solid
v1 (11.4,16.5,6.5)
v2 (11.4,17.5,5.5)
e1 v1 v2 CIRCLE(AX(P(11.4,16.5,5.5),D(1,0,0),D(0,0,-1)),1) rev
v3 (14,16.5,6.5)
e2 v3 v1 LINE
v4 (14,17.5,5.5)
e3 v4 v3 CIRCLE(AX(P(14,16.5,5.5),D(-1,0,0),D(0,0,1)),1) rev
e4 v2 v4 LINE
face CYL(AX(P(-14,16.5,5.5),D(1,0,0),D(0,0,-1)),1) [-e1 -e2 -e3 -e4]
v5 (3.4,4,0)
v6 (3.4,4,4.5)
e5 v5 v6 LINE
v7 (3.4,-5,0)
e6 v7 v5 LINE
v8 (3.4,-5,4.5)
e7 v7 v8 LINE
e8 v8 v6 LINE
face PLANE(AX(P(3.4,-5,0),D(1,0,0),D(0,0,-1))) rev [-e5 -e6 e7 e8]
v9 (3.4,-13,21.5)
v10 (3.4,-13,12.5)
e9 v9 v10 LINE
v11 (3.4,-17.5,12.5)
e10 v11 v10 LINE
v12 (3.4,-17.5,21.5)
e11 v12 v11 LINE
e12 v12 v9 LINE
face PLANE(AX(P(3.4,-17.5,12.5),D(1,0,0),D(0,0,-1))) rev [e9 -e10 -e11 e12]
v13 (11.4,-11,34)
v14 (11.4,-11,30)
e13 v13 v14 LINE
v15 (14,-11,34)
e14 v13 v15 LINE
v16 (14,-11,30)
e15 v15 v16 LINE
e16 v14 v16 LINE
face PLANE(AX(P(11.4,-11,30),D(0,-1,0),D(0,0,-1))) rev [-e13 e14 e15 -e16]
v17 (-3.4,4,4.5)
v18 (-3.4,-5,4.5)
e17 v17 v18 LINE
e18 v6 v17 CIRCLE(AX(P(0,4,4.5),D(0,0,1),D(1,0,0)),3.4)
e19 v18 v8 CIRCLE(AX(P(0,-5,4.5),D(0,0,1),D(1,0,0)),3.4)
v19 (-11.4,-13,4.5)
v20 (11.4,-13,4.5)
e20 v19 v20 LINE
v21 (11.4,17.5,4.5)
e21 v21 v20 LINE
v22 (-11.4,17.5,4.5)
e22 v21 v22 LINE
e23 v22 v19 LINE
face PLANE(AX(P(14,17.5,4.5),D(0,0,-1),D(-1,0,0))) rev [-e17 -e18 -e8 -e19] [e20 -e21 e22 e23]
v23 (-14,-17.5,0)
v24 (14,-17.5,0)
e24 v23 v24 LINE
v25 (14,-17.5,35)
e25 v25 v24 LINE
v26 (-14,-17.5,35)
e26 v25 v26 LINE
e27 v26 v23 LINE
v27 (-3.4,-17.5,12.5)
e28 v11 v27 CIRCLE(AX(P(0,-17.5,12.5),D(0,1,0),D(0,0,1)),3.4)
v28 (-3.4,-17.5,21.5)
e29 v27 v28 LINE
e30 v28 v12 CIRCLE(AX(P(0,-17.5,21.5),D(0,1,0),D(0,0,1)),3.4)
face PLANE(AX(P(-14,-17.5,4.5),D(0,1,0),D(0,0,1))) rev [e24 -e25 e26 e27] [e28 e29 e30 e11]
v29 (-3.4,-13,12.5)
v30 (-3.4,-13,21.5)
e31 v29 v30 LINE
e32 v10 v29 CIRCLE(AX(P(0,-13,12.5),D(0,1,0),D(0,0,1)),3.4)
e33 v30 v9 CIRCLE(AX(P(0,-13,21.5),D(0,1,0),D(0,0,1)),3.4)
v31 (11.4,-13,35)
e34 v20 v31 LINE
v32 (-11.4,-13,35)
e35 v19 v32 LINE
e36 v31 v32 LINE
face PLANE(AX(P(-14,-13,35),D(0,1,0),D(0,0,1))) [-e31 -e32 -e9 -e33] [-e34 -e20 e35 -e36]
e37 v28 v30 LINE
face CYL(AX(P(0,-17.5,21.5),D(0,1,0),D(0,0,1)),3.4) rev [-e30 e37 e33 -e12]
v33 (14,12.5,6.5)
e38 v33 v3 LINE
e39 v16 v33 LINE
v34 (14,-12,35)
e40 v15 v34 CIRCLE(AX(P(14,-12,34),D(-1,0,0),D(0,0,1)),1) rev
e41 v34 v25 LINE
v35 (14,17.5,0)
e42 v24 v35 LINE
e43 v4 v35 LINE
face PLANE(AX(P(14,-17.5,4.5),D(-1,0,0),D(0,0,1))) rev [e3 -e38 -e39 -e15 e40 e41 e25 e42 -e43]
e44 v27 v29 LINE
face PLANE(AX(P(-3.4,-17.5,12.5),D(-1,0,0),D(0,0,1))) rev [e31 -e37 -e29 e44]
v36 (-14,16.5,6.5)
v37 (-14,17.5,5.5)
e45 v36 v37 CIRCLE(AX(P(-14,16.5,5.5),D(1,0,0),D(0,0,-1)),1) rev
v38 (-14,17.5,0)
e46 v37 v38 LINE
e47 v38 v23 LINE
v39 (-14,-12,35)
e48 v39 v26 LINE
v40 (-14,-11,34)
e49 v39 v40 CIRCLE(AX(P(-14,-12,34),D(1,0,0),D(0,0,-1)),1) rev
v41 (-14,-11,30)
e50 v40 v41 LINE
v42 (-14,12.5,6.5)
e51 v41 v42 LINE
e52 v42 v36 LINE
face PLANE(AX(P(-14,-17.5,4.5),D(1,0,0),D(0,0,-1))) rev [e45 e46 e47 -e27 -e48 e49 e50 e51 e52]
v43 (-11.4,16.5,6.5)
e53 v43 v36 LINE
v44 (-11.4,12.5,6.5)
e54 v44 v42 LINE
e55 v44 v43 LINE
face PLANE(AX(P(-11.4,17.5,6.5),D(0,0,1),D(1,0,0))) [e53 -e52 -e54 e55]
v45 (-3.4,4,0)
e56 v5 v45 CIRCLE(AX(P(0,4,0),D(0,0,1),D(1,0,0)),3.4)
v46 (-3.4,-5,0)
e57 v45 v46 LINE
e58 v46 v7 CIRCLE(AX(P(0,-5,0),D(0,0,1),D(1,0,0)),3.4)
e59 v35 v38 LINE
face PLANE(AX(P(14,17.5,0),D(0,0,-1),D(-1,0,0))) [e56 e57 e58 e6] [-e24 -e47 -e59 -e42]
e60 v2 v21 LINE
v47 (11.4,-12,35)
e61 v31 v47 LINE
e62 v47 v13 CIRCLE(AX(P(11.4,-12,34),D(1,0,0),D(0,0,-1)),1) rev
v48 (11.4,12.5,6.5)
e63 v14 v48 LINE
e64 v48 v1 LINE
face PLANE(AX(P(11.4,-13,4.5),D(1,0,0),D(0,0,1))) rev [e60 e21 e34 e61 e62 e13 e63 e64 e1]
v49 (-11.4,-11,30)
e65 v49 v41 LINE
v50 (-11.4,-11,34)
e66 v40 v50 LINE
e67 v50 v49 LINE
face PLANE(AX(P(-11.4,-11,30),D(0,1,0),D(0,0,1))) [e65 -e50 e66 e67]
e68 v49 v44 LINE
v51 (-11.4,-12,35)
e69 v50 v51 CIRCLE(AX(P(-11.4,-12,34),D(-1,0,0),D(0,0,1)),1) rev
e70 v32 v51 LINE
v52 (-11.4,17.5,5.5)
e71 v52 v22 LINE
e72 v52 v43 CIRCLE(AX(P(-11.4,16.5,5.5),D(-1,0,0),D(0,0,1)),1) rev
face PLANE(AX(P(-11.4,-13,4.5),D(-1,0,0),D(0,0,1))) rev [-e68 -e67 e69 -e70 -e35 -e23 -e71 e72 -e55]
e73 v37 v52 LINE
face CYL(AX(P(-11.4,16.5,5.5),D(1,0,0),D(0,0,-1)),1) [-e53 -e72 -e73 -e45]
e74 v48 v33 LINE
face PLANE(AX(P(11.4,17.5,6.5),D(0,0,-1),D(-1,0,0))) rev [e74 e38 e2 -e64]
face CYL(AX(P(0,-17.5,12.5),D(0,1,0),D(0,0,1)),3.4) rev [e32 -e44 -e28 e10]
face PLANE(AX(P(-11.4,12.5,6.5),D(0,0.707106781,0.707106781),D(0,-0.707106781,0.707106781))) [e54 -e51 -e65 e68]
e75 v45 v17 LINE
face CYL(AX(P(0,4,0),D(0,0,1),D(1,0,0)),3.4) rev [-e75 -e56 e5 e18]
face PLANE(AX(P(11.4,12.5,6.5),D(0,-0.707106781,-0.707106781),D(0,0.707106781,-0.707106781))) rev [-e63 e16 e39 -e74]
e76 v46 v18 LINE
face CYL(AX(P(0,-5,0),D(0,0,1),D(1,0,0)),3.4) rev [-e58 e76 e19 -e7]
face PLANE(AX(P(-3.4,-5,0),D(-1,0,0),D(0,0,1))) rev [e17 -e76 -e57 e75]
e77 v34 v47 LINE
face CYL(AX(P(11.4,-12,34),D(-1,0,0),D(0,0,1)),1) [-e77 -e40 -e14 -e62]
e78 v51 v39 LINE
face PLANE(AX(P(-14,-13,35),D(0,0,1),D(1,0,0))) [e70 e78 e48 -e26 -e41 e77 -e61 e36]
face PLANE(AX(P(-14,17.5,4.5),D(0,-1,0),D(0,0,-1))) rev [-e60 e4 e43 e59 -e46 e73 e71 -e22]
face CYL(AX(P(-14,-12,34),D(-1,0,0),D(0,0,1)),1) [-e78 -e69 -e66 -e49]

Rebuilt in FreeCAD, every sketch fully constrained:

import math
import FreeCAD as App
import Part
import Sketcher

V = App.Vector
Q = App.Units.Quantity


def edges_at(feature, points):
    """Names of the edges that pass closest to the given points."""
    edges = feature.Shape.Edges
    near = lambda p: min(range(len(edges)), key=lambda i: edges[i].distToShape(Part.Vertex(*p))[0])
    return sorted({f"Edge{near(p) + 1}" for p in points})


def add_polygon(sketch, points):
    """Adds a closed chain of lines whose ends are joined by coincident constraints."""
    first, n = sketch.GeometryCount, len(points)
    for a, b in zip(points, points[1:] + points[:1]):
        sketch.addGeometry(Part.LineSegment(App.Vector(*a, 0), App.Vector(*b, 0)), False)
    for i in range(n):
        sketch.addConstraint(Sketcher.Constraint("Coincident", first + i, 2, first + (i + 1) % n, 1))

doc = App.newDocument("Part")
body = doc.addObject("PartDesign::Body", "Body")

# Sketch on XY plane
sketch1 = body.newObject("Sketcher::SketchObject", "Sketch")
sketch1.AttachmentSupport = (doc.getObject("XY_Plane"), [""])
sketch1.MapMode = "FlatFace"
add_polygon(sketch1, [(-14, 18), (-14, -18), (14, -18), (14, 18)])  # lines 0-3
sketch1.addConstraint(Sketcher.Constraint("Vertical", 0))
sketch1.addConstraint(Sketcher.Constraint("Horizontal", 1))
sketch1.addConstraint(Sketcher.Constraint("Vertical", 2))
sketch1.addConstraint(Sketcher.Constraint("Horizontal", 3))
sketch1.addConstraint(Sketcher.Constraint("Symmetric", 0, 2, 2, 2, -1, 1))
sketch1.addConstraint(Sketcher.Constraint("DistanceX", 1, 1, 1, 2, Q("28 mm")))
sketch1.addConstraint(Sketcher.Constraint("DistanceY", 0, 2, 0, 1, Q("35 mm")))
pad1 = body.newObject("PartDesign::Pad", "Pad")
pad1.Profile = sketch1
pad1.Length = 4.5

# Sketch on XZ plane
sketch2 = body.newObject("Sketcher::SketchObject", "Sketch001")
sketch2.AttachmentSupport = (doc.getObject("XZ_Plane"), [""])
sketch2.MapMode = "FlatFace"
sketch2.AttachmentOffset = App.Placement(V(0, 0, 17.5), App.Rotation())
add_polygon(sketch2, [(-14, 35), (-14, 0), (14, 0), (14, 35)])  # lines 0-3
sketch2.addConstraint(Sketcher.Constraint("Vertical", 0))
sketch2.addConstraint(Sketcher.Constraint("Horizontal", 1))
sketch2.addConstraint(Sketcher.Constraint("Vertical", 2))
sketch2.addConstraint(Sketcher.Constraint("Horizontal", 3))
sketch2.addConstraint(Sketcher.Constraint("Symmetric", 0, 2, 1, 2, -1, 1))
sketch2.addConstraint(Sketcher.Constraint("DistanceX", 1, 1, 1, 2, Q("28 mm")))
sketch2.addConstraint(Sketcher.Constraint("DistanceY", 0, 2, 0, 1, Q("35 mm")))
pad2 = body.newObject("PartDesign::Pad", "Pad001")
pad2.Profile = sketch2
pad2.Length = 4.5
pad2.Reversed = True

# Sketch on YZ plane
sketch3 = body.newObject("Sketcher::SketchObject", "Sketch002")
sketch3.AttachmentSupport = (doc.getObject("YZ_Plane"), [""])
sketch3.MapMode = "FlatFace"
sketch3.AttachmentOffset = App.Placement(V(0, 0, -14), App.Rotation())
add_polygon(sketch3, [(17.5, 6.5), (17.5, 4.5), (-13, 4.5), (-13, 35), (-11, 35), (-11, 30), (12.5, 6.5)])  # lines 0-6
sketch3.addConstraint(Sketcher.Constraint("Vertical", 0))
sketch3.addConstraint(Sketcher.Constraint("Horizontal", 1))
sketch3.addConstraint(Sketcher.Constraint("Vertical", 2))
sketch3.addConstraint(Sketcher.Constraint("Horizontal", 3))
sketch3.addConstraint(Sketcher.Constraint("Vertical", 4))
sketch3.addConstraint(Sketcher.Constraint("Horizontal", 6))
sketch3.addConstraint(Sketcher.Constraint("Equal", 3, 0))
sketch3.addConstraint(Sketcher.Constraint("Equal", 1, 2))
sketch3.addConstraint(Sketcher.Constraint("Equal", 6, 4))
sketch3.addConstraint(Sketcher.Constraint("DistanceX", 3, 1, 3, 2, Q("2 mm")))
sketch3.addConstraint(Sketcher.Constraint("DistanceX", 6, 1, 6, 2, Q("5 mm")))
sketch3.addConstraint(Sketcher.Constraint("DistanceX", 1, 2, 1, 1, Q("30.5 mm")))
sketch3.addConstraint(Sketcher.Constraint("DistanceX", 1, 2, -1, 1, Q("13 mm")))
sketch3.addConstraint(Sketcher.Constraint("DistanceY", -1, 1, 2, 2, Q("35 mm")))
pad3 = body.newObject("PartDesign::Pad", "Pad002")
pad3.Profile = sketch3
pad3.Length = 2.6
doc.recompute()

mirrored = body.newObject("PartDesign::Mirrored", "Mirrored")
mirrored.Originals = [pad3]
mirrored.MirrorPlane = (doc.getObject("YZ_Plane"), [""])
body.Tip = mirrored

# Sketch on XY plane
sketch4 = body.newObject("Sketcher::SketchObject", "Sketch003")
sketch4.AttachmentSupport = (doc.getObject("XY_Plane"), [""])
sketch4.MapMode = "FlatFace"
sketch4.AttachmentOffset = App.Placement(V(0, 0, 4.5), App.Rotation())
sketch4.addGeometry(Part.LineSegment(V(-3.4, 4, 0), V(-3.4, -5, 0)), False)
sketch4.addGeometry(Part.ArcOfCircle(Part.Circle(V(0, -5, 0), V(0, 0, 1), 3.4), math.radians(180), math.radians(360)), False)
sketch4.addGeometry(Part.LineSegment(V(3.4, -5, 0), V(3.4, 4, 0)), False)
sketch4.addGeometry(Part.ArcOfCircle(Part.Circle(V(0, 4, 0), V(0, 0, 1), 3.4), math.radians(0), math.radians(180)), False)
sketch4.addConstraint(Sketcher.Constraint("Tangent", 0, 2, 1, 1))
sketch4.addConstraint(Sketcher.Constraint("Tangent", 1, 2, 2, 1))
sketch4.addConstraint(Sketcher.Constraint("Tangent", 2, 2, 3, 1))
sketch4.addConstraint(Sketcher.Constraint("Tangent", 3, 2, 0, 1))
sketch4.addConstraint(Sketcher.Constraint("Vertical", 0))
sketch4.addConstraint(Sketcher.Constraint("Vertical", 2))
sketch4.addConstraint(Sketcher.Constraint("PointOnObject", 1, 3, -2))
sketch4.addConstraint(Sketcher.Constraint("Radius", 1, Q("3.4 mm")))
sketch4.addConstraint(Sketcher.Constraint("DistanceY", 0, 2, 0, 1, Q("9 mm")))
sketch4.addConstraint(Sketcher.Constraint("DistanceY", 1, 3, -1, 1, Q("5 mm")))
pocket1 = body.newObject("PartDesign::Pocket", "Pocket")
pocket1.Profile = sketch4
pocket1.Type = "ThroughAll"

# Sketch on XZ plane
sketch5 = body.newObject("Sketcher::SketchObject", "Sketch004")
sketch5.AttachmentSupport = (doc.getObject("XZ_Plane"), [""])
sketch5.MapMode = "FlatFace"
sketch5.AttachmentOffset = App.Placement(V(0, 0, 13), App.Rotation())
sketch5.addGeometry(Part.LineSegment(V(3.4, 21.5, 0), V(3.4, 12.5, 0)), False)
sketch5.addGeometry(Part.ArcOfCircle(Part.Circle(V(0, 12.5, 0), V(0, 0, 1), 3.4), math.radians(180), math.radians(360)), False)
sketch5.addGeometry(Part.LineSegment(V(-3.4, 12.5, 0), V(-3.4, 21.5, 0)), False)
sketch5.addGeometry(Part.ArcOfCircle(Part.Circle(V(0, 21.5, 0), V(0, 0, 1), 3.4), math.radians(0), math.radians(180)), False)
sketch5.addConstraint(Sketcher.Constraint("Tangent", 0, 2, 1, 2))
sketch5.addConstraint(Sketcher.Constraint("Tangent", 1, 1, 2, 1))
sketch5.addConstraint(Sketcher.Constraint("Tangent", 2, 2, 3, 2))
sketch5.addConstraint(Sketcher.Constraint("Tangent", 3, 1, 0, 1))
sketch5.addConstraint(Sketcher.Constraint("Vertical", 0))
sketch5.addConstraint(Sketcher.Constraint("Vertical", 2))
sketch5.addConstraint(Sketcher.Constraint("PointOnObject", 1, 3, -2))
sketch5.addConstraint(Sketcher.Constraint("Radius", 1, Q("3.4 mm")))
sketch5.addConstraint(Sketcher.Constraint("DistanceY", 0, 2, 0, 1, Q("9 mm")))
sketch5.addConstraint(Sketcher.Constraint("DistanceY", -1, 1, 1, 3, Q("12.5 mm")))
pocket2 = body.newObject("PartDesign::Pocket", "Pocket001")
pocket2.Profile = sketch5
pocket2.Type = "ThroughAll"
pocket2.Reversed = True
doc.recompute()

fillet = body.newObject("PartDesign::Fillet", "Fillet")
fillet.Base = (pocket2, edges_at(pocket2, [
    (-12.7, 17.5, 6.5),
    (-12.7, -11, 35),
    (12.7, -11, 35),
    (12.7, 17.5, 6.5),
]))
fillet.Radius = 1

doc.recompute()
